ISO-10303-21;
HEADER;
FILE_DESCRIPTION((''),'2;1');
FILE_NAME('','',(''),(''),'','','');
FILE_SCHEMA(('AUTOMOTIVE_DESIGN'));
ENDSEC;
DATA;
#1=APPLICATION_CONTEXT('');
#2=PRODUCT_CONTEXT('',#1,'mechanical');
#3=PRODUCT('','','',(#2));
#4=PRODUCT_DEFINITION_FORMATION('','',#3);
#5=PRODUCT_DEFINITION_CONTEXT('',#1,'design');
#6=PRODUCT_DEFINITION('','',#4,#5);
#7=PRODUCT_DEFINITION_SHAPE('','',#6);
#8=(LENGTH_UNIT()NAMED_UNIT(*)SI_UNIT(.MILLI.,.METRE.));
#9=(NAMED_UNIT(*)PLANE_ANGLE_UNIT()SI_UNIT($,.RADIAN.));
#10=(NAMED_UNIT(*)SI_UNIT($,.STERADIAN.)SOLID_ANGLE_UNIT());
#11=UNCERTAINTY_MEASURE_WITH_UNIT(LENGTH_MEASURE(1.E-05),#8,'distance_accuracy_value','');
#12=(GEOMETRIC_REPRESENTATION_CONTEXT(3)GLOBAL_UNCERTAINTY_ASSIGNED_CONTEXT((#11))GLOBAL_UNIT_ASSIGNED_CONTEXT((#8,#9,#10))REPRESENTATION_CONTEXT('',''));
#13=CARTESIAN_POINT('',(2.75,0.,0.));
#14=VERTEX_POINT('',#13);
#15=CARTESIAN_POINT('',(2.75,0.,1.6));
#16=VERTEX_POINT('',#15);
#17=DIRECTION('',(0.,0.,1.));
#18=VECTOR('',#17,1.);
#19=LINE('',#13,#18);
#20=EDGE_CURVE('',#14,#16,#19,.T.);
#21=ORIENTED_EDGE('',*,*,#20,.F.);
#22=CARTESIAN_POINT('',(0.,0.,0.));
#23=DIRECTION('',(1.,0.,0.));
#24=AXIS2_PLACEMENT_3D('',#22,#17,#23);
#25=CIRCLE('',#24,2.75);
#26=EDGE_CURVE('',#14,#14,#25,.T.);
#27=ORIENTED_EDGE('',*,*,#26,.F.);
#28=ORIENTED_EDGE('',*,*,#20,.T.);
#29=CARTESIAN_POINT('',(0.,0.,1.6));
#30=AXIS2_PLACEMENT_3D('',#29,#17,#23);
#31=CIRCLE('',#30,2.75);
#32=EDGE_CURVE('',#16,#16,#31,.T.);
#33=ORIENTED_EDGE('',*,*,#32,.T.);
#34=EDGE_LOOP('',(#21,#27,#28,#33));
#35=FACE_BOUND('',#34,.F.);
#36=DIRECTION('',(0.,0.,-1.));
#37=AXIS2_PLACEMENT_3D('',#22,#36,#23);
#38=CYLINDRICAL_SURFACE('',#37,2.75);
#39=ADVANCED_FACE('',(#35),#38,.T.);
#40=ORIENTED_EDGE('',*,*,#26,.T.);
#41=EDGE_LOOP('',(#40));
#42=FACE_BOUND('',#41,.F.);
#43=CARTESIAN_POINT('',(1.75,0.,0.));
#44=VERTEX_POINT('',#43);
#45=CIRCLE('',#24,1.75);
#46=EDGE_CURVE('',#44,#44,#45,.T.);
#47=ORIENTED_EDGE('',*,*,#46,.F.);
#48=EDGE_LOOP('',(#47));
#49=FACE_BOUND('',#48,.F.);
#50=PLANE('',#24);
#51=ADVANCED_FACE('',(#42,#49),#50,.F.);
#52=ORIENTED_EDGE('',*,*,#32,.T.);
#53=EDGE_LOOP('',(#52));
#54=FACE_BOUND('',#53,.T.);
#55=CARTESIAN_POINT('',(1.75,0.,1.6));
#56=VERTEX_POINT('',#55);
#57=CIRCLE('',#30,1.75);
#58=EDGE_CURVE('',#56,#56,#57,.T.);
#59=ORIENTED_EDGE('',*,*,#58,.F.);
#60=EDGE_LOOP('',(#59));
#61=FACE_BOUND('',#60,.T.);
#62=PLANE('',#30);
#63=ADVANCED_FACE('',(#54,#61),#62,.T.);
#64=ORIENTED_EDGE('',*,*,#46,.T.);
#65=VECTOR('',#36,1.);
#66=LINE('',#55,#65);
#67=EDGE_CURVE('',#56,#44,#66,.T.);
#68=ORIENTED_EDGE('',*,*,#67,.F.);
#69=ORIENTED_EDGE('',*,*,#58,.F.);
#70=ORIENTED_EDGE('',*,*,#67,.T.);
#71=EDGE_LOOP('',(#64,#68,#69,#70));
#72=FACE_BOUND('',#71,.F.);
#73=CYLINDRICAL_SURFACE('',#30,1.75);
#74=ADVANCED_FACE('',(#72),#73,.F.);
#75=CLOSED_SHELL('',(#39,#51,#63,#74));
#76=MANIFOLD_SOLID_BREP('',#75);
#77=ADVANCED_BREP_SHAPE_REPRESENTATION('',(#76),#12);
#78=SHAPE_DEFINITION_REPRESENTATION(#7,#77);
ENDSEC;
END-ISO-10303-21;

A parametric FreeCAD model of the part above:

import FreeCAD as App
import Part
import Sketcher
Q = App.Units.Quantity

doc = App.newDocument("Part")
body = doc.addObject("PartDesign::Body", "Body")

# Sketch on XY plane
sketch1 = body.newObject("Sketcher::SketchObject", "Sketch")
sketch1.AttachmentSupport = (doc.getObject("XY_Plane"), [""])
sketch1.MapMode = "FlatFace"
sketch1.addGeometry(Part.Circle(App.Vector(0, 0, 0), App.Vector(0, 0, 1), 2.75), False)
sketch1.addConstraint(Sketcher.Constraint("Coincident", 0, 3, -1, 1))
sketch1.addConstraint(Sketcher.Constraint("Diameter", 0, Q("5.5 mm")))
pad1 = body.newObject("PartDesign::Pad", "Pad")
pad1.Profile = sketch1
pad1.Length = 1.6

# Sketch on XY plane
sketch2 = body.newObject("Sketcher::SketchObject", "Sketch001")
sketch2.AttachmentSupport = (doc.getObject("XY_Plane"), [""])
sketch2.MapMode = "FlatFace"
sketch2.AttachmentOffset = App.Placement(App.Vector(0, 0, 1.6), App.Rotation())
sketch2.addGeometry(Part.Circle(App.Vector(0, 0, 0), App.Vector(0, 0, 1), 1.75), False)
sketch2.addConstraint(Sketcher.Constraint("Coincident", 0, 3, -1, 1))
sketch2.addConstraint(Sketcher.Constraint("Diameter", 0, Q("3.5 mm")))
pocket1 = body.newObject("PartDesign::Pocket", "Pocket")
pocket1.Profile = sketch2
pocket1.Length = 5

doc.recompute()
